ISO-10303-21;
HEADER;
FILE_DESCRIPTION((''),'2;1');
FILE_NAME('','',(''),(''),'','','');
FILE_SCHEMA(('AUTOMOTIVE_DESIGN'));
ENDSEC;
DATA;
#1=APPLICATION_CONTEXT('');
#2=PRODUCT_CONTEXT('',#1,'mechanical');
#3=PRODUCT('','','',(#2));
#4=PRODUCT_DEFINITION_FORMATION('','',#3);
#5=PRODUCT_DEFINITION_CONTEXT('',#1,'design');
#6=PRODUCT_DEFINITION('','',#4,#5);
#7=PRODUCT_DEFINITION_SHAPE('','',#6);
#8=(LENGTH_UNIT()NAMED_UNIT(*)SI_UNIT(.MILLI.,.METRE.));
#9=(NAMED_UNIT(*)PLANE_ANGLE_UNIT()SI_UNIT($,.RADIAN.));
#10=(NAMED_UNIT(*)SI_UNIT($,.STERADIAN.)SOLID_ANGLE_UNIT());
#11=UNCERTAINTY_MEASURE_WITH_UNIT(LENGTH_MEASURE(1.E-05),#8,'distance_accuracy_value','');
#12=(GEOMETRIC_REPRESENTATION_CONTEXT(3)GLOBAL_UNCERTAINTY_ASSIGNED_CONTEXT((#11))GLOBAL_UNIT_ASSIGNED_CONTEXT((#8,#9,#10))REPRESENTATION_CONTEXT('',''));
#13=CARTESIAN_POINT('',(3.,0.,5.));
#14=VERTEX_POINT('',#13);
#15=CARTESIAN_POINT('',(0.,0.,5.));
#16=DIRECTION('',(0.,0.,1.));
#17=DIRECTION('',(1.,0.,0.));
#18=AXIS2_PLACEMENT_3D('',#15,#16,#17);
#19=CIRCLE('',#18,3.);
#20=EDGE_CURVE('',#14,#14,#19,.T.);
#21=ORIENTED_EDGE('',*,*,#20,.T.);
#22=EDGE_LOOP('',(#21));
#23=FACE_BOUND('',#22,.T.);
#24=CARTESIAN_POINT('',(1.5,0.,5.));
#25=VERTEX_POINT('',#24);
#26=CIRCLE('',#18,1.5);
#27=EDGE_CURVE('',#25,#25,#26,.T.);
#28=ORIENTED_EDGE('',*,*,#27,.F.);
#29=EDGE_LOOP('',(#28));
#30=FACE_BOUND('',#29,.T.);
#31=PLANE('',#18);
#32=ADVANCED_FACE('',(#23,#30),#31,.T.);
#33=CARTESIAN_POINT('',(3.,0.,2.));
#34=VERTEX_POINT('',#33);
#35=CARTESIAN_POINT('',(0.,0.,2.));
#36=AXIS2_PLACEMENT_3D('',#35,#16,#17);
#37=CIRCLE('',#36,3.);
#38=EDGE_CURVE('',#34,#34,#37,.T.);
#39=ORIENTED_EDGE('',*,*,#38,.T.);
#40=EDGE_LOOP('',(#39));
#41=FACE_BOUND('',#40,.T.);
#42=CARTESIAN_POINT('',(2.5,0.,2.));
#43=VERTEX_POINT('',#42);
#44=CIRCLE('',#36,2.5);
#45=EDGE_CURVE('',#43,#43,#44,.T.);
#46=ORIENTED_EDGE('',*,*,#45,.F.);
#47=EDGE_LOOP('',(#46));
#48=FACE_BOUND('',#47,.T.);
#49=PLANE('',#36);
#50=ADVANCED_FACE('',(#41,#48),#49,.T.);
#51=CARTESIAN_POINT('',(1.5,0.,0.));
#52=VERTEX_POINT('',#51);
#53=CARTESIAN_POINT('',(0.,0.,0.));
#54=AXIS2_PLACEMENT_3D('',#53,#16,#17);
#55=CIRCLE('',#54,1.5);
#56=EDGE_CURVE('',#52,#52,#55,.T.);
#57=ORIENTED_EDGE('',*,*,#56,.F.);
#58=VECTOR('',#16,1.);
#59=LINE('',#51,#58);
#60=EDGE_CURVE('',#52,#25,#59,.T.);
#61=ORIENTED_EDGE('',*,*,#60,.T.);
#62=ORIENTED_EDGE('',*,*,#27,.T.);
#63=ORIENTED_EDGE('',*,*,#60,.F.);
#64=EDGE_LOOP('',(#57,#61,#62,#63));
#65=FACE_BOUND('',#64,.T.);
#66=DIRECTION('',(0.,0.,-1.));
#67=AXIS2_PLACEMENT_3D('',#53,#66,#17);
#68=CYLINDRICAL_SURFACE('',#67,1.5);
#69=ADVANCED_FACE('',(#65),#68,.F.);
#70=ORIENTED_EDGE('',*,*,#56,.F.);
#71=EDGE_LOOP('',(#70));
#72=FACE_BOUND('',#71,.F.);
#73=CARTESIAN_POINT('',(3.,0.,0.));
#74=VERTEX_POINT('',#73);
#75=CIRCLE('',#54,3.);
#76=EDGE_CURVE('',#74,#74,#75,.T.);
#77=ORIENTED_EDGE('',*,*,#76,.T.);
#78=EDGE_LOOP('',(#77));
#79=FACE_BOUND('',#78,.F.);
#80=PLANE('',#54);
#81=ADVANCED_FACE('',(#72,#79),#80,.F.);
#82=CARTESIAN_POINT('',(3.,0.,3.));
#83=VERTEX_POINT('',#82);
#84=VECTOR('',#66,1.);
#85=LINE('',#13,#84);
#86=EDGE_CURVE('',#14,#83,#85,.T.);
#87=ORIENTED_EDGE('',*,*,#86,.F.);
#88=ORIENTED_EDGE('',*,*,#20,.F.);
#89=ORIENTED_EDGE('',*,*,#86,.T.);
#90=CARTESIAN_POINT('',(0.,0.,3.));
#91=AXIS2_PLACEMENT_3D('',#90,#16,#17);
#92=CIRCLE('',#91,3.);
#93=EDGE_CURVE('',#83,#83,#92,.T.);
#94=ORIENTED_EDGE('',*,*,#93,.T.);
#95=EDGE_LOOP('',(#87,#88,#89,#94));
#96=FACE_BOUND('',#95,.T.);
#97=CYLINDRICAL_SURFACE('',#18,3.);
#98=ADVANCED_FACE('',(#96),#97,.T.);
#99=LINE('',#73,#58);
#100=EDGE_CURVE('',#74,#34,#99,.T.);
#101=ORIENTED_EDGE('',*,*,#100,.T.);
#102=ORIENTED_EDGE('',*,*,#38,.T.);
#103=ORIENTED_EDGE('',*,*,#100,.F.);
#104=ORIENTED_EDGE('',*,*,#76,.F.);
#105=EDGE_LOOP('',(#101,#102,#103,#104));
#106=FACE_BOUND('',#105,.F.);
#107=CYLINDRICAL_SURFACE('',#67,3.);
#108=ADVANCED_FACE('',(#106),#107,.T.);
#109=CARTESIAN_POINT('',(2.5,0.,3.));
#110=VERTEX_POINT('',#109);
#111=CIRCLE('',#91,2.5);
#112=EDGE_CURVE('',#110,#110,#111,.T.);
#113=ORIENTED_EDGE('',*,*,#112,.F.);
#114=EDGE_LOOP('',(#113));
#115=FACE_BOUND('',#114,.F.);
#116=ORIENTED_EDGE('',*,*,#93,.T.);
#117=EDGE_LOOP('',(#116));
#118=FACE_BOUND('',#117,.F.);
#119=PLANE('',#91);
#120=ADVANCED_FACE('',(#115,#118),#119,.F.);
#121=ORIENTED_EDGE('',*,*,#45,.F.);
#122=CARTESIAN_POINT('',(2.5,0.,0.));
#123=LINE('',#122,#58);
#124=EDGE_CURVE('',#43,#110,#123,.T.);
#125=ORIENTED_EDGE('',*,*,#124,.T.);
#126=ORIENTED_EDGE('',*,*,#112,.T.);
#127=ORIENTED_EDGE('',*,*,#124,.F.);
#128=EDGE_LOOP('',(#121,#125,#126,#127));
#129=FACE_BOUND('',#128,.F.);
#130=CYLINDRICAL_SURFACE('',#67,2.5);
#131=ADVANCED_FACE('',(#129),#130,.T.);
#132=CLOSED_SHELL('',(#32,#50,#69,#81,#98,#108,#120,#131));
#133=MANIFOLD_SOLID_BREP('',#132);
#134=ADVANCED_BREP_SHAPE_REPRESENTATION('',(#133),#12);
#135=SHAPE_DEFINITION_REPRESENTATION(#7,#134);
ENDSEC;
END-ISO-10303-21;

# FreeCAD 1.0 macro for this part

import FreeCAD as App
import Part
import Sketcher

doc = App.newDocument("Part")
params = doc.addObject("Spreadsheet::Sheet", "Params")
for row, (alias, value) in enumerate([
    ("sketch1_diameter", "5 mm"),
    ("sketch1_diameter2", "3 mm"),
    ("pad1_length", "5 mm"),
    ("sketch2_diameter", "6 mm"),
    ("sketch2_diameter2", "5 mm"),
    ("pad2_length", "2 mm"),
    ("sketch3_diameter", "6 mm"),
    ("sketch3_diameter2", "5 mm"),
    ("pad3_length", "2 mm"),
], start=1):
    params.set(f"A{row}", alias)
    params.set(f"B{row}", "=" + value)
    params.setAlias(f"B{row}", alias)

body = doc.addObject("PartDesign::Body", "Body")

sketch1 = body.newObject("Sketcher::SketchObject", "Sketch")
sketch1.AttachmentSupport = (doc.getObject("XY_Plane"), [""])
sketch1.MapMode = "FlatFace"
sketch1.addGeometry([
    Part.Circle(App.Vector(0, 0, 0), App.Vector(0, 0, 1), 2.5),
    Part.Circle(App.Vector(0, 0, 0), App.Vector(0, 0, 1), 1.5),
], False)
sketch1.addConstraint([
    Sketcher.Constraint("Coincident", 0, 3, -1, 1),
    Sketcher.Constraint("Coincident", 1, 3, -1, 1),
    Sketcher.Constraint("Diameter", 0, 5.0),
    Sketcher.Constraint("Diameter", 1, 3.0),
])
sketch1.setExpression("Constraints[2]", "Params.sketch1_diameter")
sketch1.setExpression("Constraints[3]", "Params.sketch1_diameter2")
pad1 = body.newObject("PartDesign::Pad", "Pad")
pad1.Profile = sketch1
pad1.setExpression("Length", "Params.pad1_length")

sketch2 = body.newObject("Sketcher::SketchObject", "Sketch001")
sketch2.AttachmentSupport = (doc.getObject("XY_Plane"), [""])
sketch2.MapMode = "FlatFace"
sketch2.addGeometry([
    Part.Circle(App.Vector(0, 0, 0), App.Vector(0, 0, 1), 3),
    Part.Circle(App.Vector(0, 0, 0), App.Vector(0, 0, 1), 2.5),
], False)
sketch2.addConstraint([
    Sketcher.Constraint("Coincident", 0, 3, -1, 1),
    Sketcher.Constraint("Coincident", 1, 3, -1, 1),
    Sketcher.Constraint("Diameter", 0, 6.0),
    Sketcher.Constraint("Diameter", 1, 5.0),
])
sketch2.setExpression("Constraints[2]", "Params.sketch2_diameter")
sketch2.setExpression("Constraints[3]", "Params.sketch2_diameter2")
pad2 = body.newObject("PartDesign::Pad", "Pad001")
pad2.Profile = sketch2
pad2.setExpression("Length", "Params.pad2_length")

sketch3 = body.newObject("Sketcher::SketchObject", "Sketch002")
sketch3.AttachmentSupport = (doc.getObject("XY_Plane"), [""])
sketch3.MapMode = "FlatFace"
sketch3.AttachmentOffset = App.Placement(App.Vector(0, 0, 5), App.Rotation())
sketch3.addGeometry([
    Part.Circle(App.Vector(0, 0, 0), App.Vector(0, 0, 1), 3),
    Part.Circle(App.Vector(0, 0, 0), App.Vector(0, 0, 1), 2.5),
], False)
sketch3.addConstraint([
    Sketcher.Constraint("Coincident", 0, 3, -1, 1),
    Sketcher.Constraint("Coincident", 1, 3, -1, 1),
    Sketcher.Constraint("Diameter", 0, 6.0),
    Sketcher.Constraint("Diameter", 1, 5.0),
])
sketch3.setExpression("Constraints[2]", "Params.sketch3_diameter")
sketch3.setExpression("Constraints[3]", "Params.sketch3_diameter2")
pad3 = body.newObject("PartDesign::Pad", "Pad002")
pad3.Profile = sketch3
pad3.setExpression("Length", "Params.pad3_length")
pad3.Reversed = True

doc.recompute()
